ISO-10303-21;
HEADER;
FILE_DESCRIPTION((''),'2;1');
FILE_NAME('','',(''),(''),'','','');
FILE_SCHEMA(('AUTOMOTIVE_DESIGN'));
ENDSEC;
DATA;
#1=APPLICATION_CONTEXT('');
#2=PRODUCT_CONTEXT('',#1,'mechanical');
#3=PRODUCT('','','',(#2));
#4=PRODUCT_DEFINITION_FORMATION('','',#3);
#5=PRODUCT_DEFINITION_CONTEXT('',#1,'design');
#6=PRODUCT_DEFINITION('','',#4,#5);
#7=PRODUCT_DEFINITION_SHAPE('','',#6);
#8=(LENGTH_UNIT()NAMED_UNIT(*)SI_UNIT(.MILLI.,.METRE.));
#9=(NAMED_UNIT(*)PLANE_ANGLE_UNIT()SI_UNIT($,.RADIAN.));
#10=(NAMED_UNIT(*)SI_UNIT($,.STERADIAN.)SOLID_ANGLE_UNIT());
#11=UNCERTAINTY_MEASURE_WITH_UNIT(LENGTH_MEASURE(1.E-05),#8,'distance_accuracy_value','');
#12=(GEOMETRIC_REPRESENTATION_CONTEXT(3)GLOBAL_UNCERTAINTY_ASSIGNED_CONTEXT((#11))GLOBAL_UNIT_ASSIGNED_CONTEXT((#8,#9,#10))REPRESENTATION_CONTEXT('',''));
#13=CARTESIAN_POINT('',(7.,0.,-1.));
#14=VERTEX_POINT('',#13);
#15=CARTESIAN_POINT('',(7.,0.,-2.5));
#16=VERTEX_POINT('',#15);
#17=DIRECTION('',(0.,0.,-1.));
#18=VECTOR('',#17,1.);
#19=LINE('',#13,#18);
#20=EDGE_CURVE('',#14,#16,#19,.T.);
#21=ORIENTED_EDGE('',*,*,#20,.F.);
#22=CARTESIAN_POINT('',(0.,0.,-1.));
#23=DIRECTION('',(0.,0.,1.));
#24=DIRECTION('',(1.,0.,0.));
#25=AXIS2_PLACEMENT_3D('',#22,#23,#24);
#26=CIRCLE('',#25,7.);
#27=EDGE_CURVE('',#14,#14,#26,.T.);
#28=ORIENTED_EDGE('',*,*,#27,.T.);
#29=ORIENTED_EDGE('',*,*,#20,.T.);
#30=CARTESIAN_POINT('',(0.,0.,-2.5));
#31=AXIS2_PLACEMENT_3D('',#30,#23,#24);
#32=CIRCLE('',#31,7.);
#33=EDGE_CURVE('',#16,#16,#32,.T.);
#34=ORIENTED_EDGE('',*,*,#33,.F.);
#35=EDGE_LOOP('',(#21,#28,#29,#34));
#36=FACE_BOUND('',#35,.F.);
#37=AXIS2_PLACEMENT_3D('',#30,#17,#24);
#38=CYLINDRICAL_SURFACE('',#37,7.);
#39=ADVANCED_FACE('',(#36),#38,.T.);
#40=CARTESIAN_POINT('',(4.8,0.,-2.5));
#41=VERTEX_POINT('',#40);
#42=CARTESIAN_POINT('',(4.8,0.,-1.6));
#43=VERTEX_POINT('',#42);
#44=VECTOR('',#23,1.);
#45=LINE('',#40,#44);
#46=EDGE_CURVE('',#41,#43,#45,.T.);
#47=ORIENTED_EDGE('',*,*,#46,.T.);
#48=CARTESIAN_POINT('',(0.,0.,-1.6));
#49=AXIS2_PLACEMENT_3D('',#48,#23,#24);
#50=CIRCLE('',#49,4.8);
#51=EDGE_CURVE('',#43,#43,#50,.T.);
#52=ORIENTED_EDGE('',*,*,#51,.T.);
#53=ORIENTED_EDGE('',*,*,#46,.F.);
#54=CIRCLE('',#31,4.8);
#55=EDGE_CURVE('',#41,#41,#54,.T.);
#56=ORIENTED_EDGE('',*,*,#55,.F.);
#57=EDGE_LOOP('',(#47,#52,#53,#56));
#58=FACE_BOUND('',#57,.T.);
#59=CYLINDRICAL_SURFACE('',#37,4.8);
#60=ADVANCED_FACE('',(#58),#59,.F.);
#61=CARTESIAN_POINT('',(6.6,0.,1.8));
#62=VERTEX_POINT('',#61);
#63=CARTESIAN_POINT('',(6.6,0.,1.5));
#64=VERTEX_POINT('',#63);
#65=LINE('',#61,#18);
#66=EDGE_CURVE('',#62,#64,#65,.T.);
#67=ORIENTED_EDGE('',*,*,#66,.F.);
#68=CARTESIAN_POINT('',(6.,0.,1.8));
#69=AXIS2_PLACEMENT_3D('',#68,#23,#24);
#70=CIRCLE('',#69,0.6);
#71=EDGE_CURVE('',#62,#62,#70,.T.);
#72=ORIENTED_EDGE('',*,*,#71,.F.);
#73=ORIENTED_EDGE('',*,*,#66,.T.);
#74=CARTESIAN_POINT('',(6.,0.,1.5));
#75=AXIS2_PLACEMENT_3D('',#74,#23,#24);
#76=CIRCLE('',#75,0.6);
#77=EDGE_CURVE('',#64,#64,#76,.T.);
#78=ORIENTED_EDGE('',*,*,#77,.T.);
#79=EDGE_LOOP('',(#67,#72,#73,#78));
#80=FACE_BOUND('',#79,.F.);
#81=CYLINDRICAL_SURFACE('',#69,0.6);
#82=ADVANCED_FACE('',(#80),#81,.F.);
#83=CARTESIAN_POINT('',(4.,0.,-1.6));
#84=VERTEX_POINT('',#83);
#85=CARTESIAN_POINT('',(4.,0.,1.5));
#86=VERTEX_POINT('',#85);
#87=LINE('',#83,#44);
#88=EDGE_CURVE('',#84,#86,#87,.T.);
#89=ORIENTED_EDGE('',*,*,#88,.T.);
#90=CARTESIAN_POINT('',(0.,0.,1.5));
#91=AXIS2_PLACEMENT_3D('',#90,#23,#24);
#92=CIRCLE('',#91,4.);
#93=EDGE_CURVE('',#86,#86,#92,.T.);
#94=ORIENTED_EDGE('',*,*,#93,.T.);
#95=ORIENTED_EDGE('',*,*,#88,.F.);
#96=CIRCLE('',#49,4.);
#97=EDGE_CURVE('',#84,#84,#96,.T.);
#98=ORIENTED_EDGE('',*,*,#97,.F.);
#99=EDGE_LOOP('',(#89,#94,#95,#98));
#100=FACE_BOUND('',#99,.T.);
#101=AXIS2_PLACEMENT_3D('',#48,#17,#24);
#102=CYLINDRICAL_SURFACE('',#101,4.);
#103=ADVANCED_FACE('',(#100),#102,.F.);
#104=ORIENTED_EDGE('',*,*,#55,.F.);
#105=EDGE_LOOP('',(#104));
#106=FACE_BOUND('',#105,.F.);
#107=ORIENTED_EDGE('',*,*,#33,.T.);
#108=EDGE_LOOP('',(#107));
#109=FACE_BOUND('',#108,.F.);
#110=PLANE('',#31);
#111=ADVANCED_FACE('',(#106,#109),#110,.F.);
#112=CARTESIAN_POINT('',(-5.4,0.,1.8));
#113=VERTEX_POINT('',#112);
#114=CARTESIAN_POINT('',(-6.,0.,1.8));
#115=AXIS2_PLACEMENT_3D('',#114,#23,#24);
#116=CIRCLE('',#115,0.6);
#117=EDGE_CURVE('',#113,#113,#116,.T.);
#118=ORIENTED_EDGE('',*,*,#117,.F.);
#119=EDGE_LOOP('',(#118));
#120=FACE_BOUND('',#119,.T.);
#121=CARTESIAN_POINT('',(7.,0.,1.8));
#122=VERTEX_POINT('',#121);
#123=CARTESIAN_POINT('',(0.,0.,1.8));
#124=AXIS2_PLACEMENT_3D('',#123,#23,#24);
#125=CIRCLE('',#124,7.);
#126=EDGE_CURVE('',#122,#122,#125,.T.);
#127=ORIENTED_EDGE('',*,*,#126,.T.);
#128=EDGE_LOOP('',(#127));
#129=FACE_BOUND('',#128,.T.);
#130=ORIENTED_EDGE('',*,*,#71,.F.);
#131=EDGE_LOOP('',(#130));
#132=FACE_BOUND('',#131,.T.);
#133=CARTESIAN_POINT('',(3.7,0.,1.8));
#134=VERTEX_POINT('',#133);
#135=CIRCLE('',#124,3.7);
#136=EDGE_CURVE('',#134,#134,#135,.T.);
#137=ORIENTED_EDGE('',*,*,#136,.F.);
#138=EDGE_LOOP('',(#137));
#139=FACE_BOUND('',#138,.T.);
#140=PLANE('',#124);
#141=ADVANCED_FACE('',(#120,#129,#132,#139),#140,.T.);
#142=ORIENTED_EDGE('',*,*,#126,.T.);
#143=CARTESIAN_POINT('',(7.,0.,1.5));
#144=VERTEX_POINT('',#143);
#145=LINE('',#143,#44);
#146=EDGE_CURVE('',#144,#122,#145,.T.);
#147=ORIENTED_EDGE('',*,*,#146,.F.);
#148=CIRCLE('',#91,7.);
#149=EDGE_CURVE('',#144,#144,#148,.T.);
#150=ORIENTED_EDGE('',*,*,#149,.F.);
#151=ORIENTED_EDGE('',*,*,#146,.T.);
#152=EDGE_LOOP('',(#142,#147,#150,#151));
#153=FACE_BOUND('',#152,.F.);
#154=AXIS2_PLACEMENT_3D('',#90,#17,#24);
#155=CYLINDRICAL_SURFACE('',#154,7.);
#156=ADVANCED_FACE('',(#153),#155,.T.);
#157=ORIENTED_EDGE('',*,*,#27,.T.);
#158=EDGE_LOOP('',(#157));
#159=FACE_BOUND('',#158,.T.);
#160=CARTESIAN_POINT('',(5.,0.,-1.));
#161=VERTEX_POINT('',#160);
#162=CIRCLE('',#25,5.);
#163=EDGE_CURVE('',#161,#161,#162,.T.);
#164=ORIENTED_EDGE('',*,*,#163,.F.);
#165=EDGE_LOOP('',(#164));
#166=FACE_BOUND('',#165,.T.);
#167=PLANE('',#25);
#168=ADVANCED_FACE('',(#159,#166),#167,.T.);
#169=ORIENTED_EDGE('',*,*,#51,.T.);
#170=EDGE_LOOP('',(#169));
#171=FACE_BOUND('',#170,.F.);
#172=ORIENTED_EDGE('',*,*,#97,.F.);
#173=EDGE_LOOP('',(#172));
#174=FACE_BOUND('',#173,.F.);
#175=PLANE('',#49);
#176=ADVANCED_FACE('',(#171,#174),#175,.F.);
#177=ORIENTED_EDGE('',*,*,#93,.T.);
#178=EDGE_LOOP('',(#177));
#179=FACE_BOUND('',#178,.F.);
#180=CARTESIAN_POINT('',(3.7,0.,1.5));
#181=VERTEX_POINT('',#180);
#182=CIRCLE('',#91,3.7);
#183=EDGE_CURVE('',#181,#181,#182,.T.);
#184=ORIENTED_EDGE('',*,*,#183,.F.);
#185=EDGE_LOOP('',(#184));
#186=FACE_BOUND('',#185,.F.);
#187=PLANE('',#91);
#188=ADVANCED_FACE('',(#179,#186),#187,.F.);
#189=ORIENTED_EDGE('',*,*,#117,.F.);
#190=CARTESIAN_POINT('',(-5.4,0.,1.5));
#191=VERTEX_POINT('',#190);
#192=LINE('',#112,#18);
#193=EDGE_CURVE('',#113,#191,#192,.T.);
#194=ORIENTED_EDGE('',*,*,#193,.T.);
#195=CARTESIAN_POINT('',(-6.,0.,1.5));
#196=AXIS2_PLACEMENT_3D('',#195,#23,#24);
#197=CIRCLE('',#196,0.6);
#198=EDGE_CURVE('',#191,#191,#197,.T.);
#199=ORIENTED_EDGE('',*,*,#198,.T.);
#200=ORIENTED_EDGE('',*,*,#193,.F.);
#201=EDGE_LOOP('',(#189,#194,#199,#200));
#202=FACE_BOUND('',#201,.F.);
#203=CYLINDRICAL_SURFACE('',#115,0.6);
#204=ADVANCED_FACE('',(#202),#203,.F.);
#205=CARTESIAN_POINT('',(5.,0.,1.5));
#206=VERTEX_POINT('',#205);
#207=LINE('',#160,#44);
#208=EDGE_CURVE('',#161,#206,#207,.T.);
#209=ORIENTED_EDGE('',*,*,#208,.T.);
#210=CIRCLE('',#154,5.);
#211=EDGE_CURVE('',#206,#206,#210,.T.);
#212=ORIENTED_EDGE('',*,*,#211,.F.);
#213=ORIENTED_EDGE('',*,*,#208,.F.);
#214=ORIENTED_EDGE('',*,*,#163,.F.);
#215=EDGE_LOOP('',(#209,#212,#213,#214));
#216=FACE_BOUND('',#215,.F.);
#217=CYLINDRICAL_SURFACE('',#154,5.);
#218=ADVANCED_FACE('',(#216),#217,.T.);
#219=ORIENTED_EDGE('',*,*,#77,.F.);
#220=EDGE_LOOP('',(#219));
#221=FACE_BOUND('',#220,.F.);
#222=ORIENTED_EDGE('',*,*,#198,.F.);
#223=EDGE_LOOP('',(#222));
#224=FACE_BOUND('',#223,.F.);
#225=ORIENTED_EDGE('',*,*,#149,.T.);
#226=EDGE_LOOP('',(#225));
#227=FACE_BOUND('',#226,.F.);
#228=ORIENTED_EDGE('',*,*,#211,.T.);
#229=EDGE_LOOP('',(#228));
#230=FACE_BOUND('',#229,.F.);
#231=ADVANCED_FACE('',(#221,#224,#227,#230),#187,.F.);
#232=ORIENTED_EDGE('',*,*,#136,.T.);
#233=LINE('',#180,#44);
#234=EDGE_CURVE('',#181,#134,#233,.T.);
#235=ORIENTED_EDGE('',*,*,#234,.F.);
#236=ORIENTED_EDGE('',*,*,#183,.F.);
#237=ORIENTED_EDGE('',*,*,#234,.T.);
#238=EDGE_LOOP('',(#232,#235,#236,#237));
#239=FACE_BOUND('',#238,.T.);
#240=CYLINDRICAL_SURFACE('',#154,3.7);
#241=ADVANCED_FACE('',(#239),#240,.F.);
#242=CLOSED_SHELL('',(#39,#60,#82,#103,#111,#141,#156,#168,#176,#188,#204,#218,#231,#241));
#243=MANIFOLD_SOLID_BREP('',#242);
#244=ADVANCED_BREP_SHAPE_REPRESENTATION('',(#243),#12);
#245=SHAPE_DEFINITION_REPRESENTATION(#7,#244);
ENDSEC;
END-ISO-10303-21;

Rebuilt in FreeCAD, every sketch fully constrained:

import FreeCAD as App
import Part
import Sketcher

V = App.Vector
Q = App.Units.Quantity

doc = App.newDocument("Part")
params = doc.addObject("Spreadsheet::Sheet", "Params")
for row, (alias, value) in enumerate([
    ("sketch1_diameter", "10 mm"),
    ("sketch1_diameter2", "8 mm"),
    ("pad1_length", "2.5 mm"),
    ("sketch2_diameter", "10 mm"),
    ("sketch2_diameter2", "7.4 mm"),
    ("pad2_length", "0.3 mm"),
    ("sketch3_diameter", "14 mm"),
    ("sketch3_diameter2", "7.4 mm"),
    ("pad3_length", "0.3 mm"),
    ("sketch4_diameter", "14 mm"),
    ("sketch4_diameter2", "8 mm"),
    ("pad4_length", "0.6 mm"),
    ("sketch5_diameter", "14 mm"),
    ("sketch5_diameter2", "9.6 mm"),
    ("pad5_length", "0.9 mm"),
    ("sketch6_diameter", "1.2 mm"),
    ("pocket1_length", "0.301 mm"),
], start=1):
    params.set(f"A{row}", alias)
    params.set(f"B{row}", "=" + value)
    params.setAlias(f"B{row}", alias)

body = doc.addObject("PartDesign::Body", "Body")

sketch1 = body.newObject("Sketcher::SketchObject", "Sketch")
sketch1.AttachmentSupport = (doc.getObject("XY_Plane"), [""])
sketch1.MapMode = "FlatFace"
sketch1.AttachmentOffset = App.Placement(V(0, 0, -1), App.Rotation())
sketch1.addGeometry(Part.Circle(V(0, 0, 0), V(0, 0, 1), 5), False)
sketch1.addGeometry(Part.Circle(V(0, 0, 0), V(0, 0, 1), 4), False)
sketch1.addConstraint(Sketcher.Constraint("Coincident", 0, 3, -1, 1))
sketch1.addConstraint(Sketcher.Constraint("Coincident", 1, 3, -1, 1))
sketch1.addConstraint(Sketcher.Constraint("Diameter", 0, Q("10 mm")))
sketch1.addConstraint(Sketcher.Constraint("Diameter", 1, Q("8 mm")))
sketch1.setExpression("Constraints[2]", "Params.sketch1_diameter")
sketch1.setExpression("Constraints[3]", "Params.sketch1_diameter2")
pad1 = body.newObject("PartDesign::Pad", "Pad")
pad1.Profile = sketch1
pad1.setExpression("Length", "Params.pad1_length")

sketch2 = body.newObject("Sketcher::SketchObject", "Sketch001")
sketch2.AttachmentSupport = (doc.getObject("XY_Plane"), [""])
sketch2.MapMode = "FlatFace"
sketch2.AttachmentOffset = App.Placement(V(0, 0, 1.5), App.Rotation())
sketch2.addGeometry(Part.Circle(V(0, 0, 0), V(0, 0, 1), 5), False)
sketch2.addGeometry(Part.Circle(V(0, 0, 0), V(0, 0, 1), 3.7), False)
sketch2.addConstraint(Sketcher.Constraint("Coincident", 0, 3, -1, 1))
sketch2.addConstraint(Sketcher.Constraint("Coincident", 1, 3, -1, 1))
sketch2.addConstraint(Sketcher.Constraint("Diameter", 0, Q("10 mm")))
sketch2.addConstraint(Sketcher.Constraint("Diameter", 1, Q("7.4 mm")))
sketch2.setExpression("Constraints[2]", "Params.sketch2_diameter")
sketch2.setExpression("Constraints[3]", "Params.sketch2_diameter2")
pad2 = body.newObject("PartDesign::Pad", "Pad001")
pad2.Profile = sketch2
pad2.setExpression("Length", "Params.pad2_length")

sketch3 = body.newObject("Sketcher::SketchObject", "Sketch002")
sketch3.AttachmentSupport = (doc.getObject("XY_Plane"), [""])
sketch3.MapMode = "FlatFace"
sketch3.AttachmentOffset = App.Placement(V(0, 0, 1.5), App.Rotation())
sketch3.addGeometry(Part.Circle(V(0, 0, 0), V(0, 0, 1), 7), False)
sketch3.addGeometry(Part.Circle(V(0, 0, 0), V(0, 0, 1), 3.7), False)
sketch3.addConstraint(Sketcher.Constraint("Coincident", 0, 3, -1, 1))
sketch3.addConstraint(Sketcher.Constraint("Coincident", 1, 3, -1, 1))
sketch3.addConstraint(Sketcher.Constraint("Diameter", 0, Q("14 mm")))
sketch3.addConstraint(Sketcher.Constraint("Diameter", 1, Q("7.4 mm")))
sketch3.setExpression("Constraints[2]", "Params.sketch3_diameter")
sketch3.setExpression("Constraints[3]", "Params.sketch3_diameter2")
pad3 = body.newObject("PartDesign::Pad", "Pad002")
pad3.Profile = sketch3
pad3.setExpression("Length", "Params.pad3_length")

sketch4 = body.newObject("Sketcher::SketchObject", "Sketch003")
sketch4.AttachmentSupport = (doc.getObject("XY_Plane"), [""])
sketch4.MapMode = "FlatFace"
sketch4.AttachmentOffset = App.Placement(V(0, 0, -1.6), App.Rotation())
sketch4.addGeometry(Part.Circle(V(0, 0, 0), V(0, 0, 1), 7), False)
sketch4.addGeometry(Part.Circle(V(0, 0, 0), V(0, 0, 1), 4), False)
sketch4.addConstraint(Sketcher.Constraint("Coincident", 0, 3, -1, 1))
sketch4.addConstraint(Sketcher.Constraint("Coincident", 1, 3, -1, 1))
sketch4.addConstraint(Sketcher.Constraint("Diameter", 0, Q("14 mm")))
sketch4.addConstraint(Sketcher.Constraint("Diameter", 1, Q("8 mm")))
sketch4.setExpression("Constraints[2]", "Params.sketch4_diameter")
sketch4.setExpression("Constraints[3]", "Params.sketch4_diameter2")
pad4 = body.newObject("PartDesign::Pad", "Pad003")
pad4.Profile = sketch4
pad4.setExpression("Length", "Params.pad4_length")

sketch5 = body.newObject("Sketcher::SketchObject", "Sketch004")
sketch5.AttachmentSupport = (doc.getObject("XY_Plane"), [""])
sketch5.MapMode = "FlatFace"
sketch5.AttachmentOffset = App.Placement(V(0, 0, -2.5), App.Rotation())
sketch5.addGeometry(Part.Circle(V(0, 0, 0), V(0, 0, 1), 7), False)
sketch5.addGeometry(Part.Circle(V(0, 0, 0), V(0, 0, 1), 4.8), False)
sketch5.addConstraint(Sketcher.Constraint("Coincident", 0, 3, -1, 1))
sketch5.addConstraint(Sketcher.Constraint("Coincident", 1, 3, -1, 1))
sketch5.addConstraint(Sketcher.Constraint("Diameter", 0, Q("14 mm")))
sketch5.addConstraint(Sketcher.Constraint("Diameter", 1, Q("9.6 mm")))
sketch5.setExpression("Constraints[2]", "Params.sketch5_diameter")
sketch5.setExpression("Constraints[3]", "Params.sketch5_diameter2")
pad5 = body.newObject("PartDesign::Pad", "Pad004")
pad5.Profile = sketch5
pad5.setExpression("Length", "Params.pad5_length")

sketch6 = body.newObject("Sketcher::SketchObject", "Sketch005")
sketch6.AttachmentSupport = (doc.getObject("XY_Plane"), [""])
sketch6.MapMode = "FlatFace"
sketch6.AttachmentOffset = App.Placement(V(0, 0, 1.8), App.Rotation())
sketch6.addGeometry(Part.Circle(V(-6, 0, 0), V(0, 0, 1), 0.6), False)
sketch6.addGeometry(Part.Circle(V(6, 0, 0), V(0, 0, 1), 0.6), False)
sketch6.addConstraint(Sketcher.Constraint("Equal", 0, 1))
sketch6.addConstraint(Sketcher.Constraint("Symmetric", 0, 3, 1, 3, -1, 1))
sketch6.addConstraint(Sketcher.Constraint("PointOnObject", 0, 3, -1))
sketch6.addConstraint(Sketcher.Constraint("Diameter", 0, Q("1.2 mm")))
sketch6.addConstraint(Sketcher.Constraint("DistanceX", 0, 3, -1, 1, Q("6 mm")))
sketch6.setExpression("Constraints[3]", "Params.sketch6_diameter")
pocket1 = body.newObject("PartDesign::Pocket", "Pocket")
pocket1.Profile = sketch6
pocket1.setExpression("Length", "Params.pocket1_length")

doc.recompute()
